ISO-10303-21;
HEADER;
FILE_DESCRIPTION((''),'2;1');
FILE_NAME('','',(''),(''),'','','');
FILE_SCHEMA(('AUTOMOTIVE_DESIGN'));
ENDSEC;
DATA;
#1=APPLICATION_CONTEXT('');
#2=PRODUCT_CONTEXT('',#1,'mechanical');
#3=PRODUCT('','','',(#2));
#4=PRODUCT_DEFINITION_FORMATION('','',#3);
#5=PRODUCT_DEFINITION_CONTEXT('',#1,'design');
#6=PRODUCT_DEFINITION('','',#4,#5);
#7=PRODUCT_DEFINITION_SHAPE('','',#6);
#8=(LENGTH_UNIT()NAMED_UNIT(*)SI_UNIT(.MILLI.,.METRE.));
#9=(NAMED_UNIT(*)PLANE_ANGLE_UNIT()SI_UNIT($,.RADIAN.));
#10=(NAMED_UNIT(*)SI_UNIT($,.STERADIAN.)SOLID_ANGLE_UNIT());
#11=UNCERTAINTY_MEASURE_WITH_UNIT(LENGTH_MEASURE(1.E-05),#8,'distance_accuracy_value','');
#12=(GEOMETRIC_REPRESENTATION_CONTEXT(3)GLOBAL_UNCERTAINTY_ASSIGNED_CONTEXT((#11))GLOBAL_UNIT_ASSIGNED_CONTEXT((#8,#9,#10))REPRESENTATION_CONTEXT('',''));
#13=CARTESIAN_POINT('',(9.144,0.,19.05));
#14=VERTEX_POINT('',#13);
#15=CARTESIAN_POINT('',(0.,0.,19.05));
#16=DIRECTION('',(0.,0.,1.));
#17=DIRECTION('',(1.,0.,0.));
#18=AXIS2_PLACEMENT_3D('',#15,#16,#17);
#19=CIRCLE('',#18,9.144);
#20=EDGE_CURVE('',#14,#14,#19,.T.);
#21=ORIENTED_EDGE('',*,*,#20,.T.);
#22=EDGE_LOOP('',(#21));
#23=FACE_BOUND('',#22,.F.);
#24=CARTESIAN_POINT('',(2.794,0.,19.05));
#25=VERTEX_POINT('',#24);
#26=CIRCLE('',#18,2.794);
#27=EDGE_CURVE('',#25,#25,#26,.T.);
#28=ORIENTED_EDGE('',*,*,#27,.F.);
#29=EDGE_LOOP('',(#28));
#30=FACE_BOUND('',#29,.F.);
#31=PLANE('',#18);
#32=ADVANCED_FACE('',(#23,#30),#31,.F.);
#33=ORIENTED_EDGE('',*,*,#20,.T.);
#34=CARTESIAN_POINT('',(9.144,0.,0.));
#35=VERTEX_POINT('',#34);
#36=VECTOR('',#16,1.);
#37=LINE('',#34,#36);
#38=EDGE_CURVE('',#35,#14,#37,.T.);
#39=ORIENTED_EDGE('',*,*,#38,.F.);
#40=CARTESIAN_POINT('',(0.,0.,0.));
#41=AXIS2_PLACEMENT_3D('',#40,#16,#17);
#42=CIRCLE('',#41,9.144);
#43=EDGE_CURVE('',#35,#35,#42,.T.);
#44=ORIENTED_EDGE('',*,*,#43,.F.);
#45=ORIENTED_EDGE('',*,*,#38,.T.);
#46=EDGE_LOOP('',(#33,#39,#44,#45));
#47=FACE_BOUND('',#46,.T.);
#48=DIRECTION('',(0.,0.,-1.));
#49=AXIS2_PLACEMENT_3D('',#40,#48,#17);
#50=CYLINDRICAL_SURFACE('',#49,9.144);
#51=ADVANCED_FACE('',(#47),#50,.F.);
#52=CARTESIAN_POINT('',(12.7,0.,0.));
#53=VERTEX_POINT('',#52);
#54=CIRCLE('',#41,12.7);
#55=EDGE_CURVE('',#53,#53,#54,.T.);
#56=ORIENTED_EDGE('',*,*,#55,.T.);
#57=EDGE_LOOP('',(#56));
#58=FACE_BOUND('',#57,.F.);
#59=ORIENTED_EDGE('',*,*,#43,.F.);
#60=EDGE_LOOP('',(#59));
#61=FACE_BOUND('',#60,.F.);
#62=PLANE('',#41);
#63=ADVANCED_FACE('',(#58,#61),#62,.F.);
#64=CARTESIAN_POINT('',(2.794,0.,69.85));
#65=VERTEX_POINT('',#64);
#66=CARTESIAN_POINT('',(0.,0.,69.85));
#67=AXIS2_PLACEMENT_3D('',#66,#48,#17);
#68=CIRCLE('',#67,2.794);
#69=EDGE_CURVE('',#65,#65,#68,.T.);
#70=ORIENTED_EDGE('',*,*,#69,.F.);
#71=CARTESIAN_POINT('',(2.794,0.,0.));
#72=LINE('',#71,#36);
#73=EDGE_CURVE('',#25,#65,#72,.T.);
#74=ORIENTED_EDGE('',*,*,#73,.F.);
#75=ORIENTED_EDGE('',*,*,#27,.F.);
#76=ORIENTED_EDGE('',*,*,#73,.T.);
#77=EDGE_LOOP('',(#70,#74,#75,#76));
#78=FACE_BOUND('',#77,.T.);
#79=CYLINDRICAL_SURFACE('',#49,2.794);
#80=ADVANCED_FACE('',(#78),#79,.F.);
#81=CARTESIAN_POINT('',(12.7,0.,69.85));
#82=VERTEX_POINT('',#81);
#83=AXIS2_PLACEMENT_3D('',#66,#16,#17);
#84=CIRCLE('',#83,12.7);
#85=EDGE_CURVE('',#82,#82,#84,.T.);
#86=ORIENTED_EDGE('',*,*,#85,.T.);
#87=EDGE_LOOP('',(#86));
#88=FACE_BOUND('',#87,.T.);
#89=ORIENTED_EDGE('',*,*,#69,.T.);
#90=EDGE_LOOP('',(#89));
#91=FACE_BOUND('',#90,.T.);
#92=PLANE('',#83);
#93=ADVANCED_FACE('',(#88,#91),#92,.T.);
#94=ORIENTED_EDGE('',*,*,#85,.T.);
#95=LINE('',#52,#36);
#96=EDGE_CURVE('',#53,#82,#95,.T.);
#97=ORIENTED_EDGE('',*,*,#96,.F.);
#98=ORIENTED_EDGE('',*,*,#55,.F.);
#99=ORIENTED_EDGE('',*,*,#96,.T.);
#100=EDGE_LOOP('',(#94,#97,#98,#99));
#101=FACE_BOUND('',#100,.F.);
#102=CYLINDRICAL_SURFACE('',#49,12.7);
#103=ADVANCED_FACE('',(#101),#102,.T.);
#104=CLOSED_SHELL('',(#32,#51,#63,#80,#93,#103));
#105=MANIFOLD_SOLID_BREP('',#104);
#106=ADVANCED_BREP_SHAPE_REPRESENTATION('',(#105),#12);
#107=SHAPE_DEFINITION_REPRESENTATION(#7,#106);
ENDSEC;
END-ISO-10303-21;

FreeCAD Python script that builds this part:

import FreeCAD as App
import Part
import Sketcher

V = App.Vector
Q = App.Units.Quantity

doc = App.newDocument("Part")
body = doc.addObject("PartDesign::Body", "Body")

sketch1 = body.newObject("Sketcher::SketchObject", "Sketch")
sketch1.AttachmentSupport = (doc.getObject("XY_Plane"), [""])
sketch1.MapMode = "FlatFace"
sketch1.addGeometry(Part.Circle(V(0, 0, 0), V(0, 0, 1), 13), False)
sketch1.addConstraint([
    Sketcher.Constraint("Coincident", 0, 3, -1, 1),
    Sketcher.Constraint("Diameter", 0, Q("1 in")),
])
pad1 = body.newObject("PartDesign::Pad", "Pad")
pad1.Profile = sketch1
pad1.Length = Q("2.75 in")

sketch2 = body.newObject("Sketcher::SketchObject", "Sketch001")
sketch2.AttachmentSupport = (doc.getObject("XY_Plane"), [""])
sketch2.MapMode = "FlatFace"
sketch2.addGeometry(Part.Circle(V(0, 0, 0), V(0, 0, 1), 2.8), False)
sketch2.addConstraint([
    Sketcher.Constraint("Coincident", 0, 3, -1, 1),
    Sketcher.Constraint("Diameter", 0, Q("0.22 in")),
])
pocket1 = body.newObject("PartDesign::Pocket", "Pocket")
pocket1.Profile = sketch2
pocket1.Type = "ThroughAll"
pocket1.Reversed = True

sketch3 = body.newObject("Sketcher::SketchObject", "Sketch002")
sketch3.AttachmentSupport = (doc.getObject("XY_Plane"), [""])
sketch3.MapMode = "FlatFace"
sketch3.addGeometry([
    Part.Circle(V(0, 0, 0), V(0, 0, 1), 9.1),
    Part.Circle(V(0, 0, 0), V(0, 0, 1), 2.8),
], False)
sketch3.addConstraint([
    Sketcher.Constraint("Coincident", 0, 3, -1, 1),
    Sketcher.Constraint("Coincident", 1, 3, -1, 1),
    Sketcher.Constraint("Diameter", 0, Q("0.72 in")),
    Sketcher.Constraint("Diameter", 1, Q("0.22 in")),
])
pocket2 = body.newObject("PartDesign::Pocket", "Pocket001")
pocket2.Profile = sketch3
pocket2.Length = Q("0.75 in")
pocket2.Reversed = True

doc.recompute()
